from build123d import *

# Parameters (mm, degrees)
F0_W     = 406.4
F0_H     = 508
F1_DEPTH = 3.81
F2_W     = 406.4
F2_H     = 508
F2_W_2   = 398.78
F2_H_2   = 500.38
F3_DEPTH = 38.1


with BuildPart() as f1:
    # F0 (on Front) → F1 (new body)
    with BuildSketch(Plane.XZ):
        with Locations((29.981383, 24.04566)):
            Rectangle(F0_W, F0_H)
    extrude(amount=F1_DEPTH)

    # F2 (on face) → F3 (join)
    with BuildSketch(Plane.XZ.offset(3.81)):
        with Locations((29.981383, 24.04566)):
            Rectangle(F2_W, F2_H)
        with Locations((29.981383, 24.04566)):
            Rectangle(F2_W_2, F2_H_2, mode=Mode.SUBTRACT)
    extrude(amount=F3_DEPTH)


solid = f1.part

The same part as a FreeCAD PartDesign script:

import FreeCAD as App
import Part
import Sketcher

V = App.Vector
Q = App.Units.Quantity


def add_polygon(sketch, points):
    """Adds a closed chain of lines whose ends are joined by coincident constraints."""
    first, n = sketch.GeometryCount, len(points)
    for a, b in zip(points, points[1:] + points[:1]):
        sketch.addGeometry(Part.LineSegment(App.Vector(*a, 0), App.Vector(*b, 0)), False)
    for i in range(n):
        sketch.addConstraint(Sketcher.Constraint("Coincident", first + i, 2, first + (i + 1) % n, 1))

doc = App.newDocument("Part")
params = doc.addObject("Spreadsheet::Sheet", "Params")
for row, (alias, value) in enumerate([
    ("sketch1_width", "16 in"),
    ("sketch1_height", "20 in"),
    ("pad1_length", "0.15 in"),
    ("sketch2_width", "16 in"),
    ("sketch2_height", "20 in"),
    ("sketch2_width2", "15.7 in"),
    ("sketch2_height2", "19.7 in"),
    ("pad2_length", "1.5 in"),
], start=1):
    params.set(f"A{row}", alias)
    params.set(f"B{row}", "=" + value)
    params.setAlias(f"B{row}", alias)

body = doc.addObject("PartDesign::Body", "Body")

# Sketch on XZ plane
sketch1 = doc.addObject("Sketcher::SketchObject", "Sketch")
body.addObject(sketch1)
sketch1.AttachmentSupport = (doc.XZ_Plane, [""])
sketch1.MapMode = "FlatFace"
add_polygon(sketch1, [(-173, 278), (-173, -230), (233, -230), (233, 278)])  # lines 0-3
sketch1.addConstraint([
    Sketcher.Constraint("Vertical", 0),
    Sketcher.Constraint("Horizontal", 1),
    Sketcher.Constraint("Vertical", 2),
    Sketcher.Constraint("Horizontal", 3),
    Sketcher.Constraint("DistanceX", 1, 1, 1, 2, Q("16 in")),
    Sketcher.Constraint("DistanceY", 0, 2, 0, 1, Q("20 in")),
    Sketcher.Constraint("DistanceY", 0, 2, -1, 1, 229.95434),
    Sketcher.Constraint("DistanceX", 0, 2, -1, 1, 173.218617),
])
sketch1.setExpression("Constraints[8]", "Params.sketch1_width")
sketch1.setExpression("Constraints[9]", "Params.sketch1_height")
pad1 = doc.addObject("PartDesign::Pad", "Pad")
body.addObject(pad1)
pad1.Profile = sketch1
pad1.setExpression("Length", "Params.pad1_length")

# Sketch on XZ plane
sketch2 = doc.addObject("Sketcher::SketchObject", "Sketch001")
body.addObject(sketch2)
sketch2.AttachmentSupport = (doc.XZ_Plane, [""])
sketch2.MapMode = "FlatFace"
sketch2.AttachmentOffset = App.Placement(V(0, 0, 0.15 * 25.4), App.Rotation())
add_polygon(sketch2, [(-173, 278), (-173, -230), (233, -230), (233, 278)])  # lines 0-3
add_polygon(sketch2, [(229, -226), (-169, -226), (-169, 274), (229, 274)])  # lines 4-7
sketch2.addConstraint([
    Sketcher.Constraint("Vertical", 0),
    Sketcher.Constraint("Horizontal", 1),
    Sketcher.Constraint("Vertical", 2),
    Sketcher.Constraint("Horizontal", 3),
    Sketcher.Constraint("Horizontal", 4),
    Sketcher.Constraint("Vertical", 5),
    Sketcher.Constraint("Horizontal", 6),
    Sketcher.Constraint("Vertical", 7),
    Sketcher.Constraint("DistanceX", 1, 1, 1, 2, Q("16 in")),
    Sketcher.Constraint("DistanceY", 0, 2, 0, 1, Q("20 in")),
    Sketcher.Constraint("DistanceX", 4, 2, 4, 1, Q("15.7 in")),
    Sketcher.Constraint("DistanceY", 5, 1, 5, 2, Q("19.7 in")),
    Sketcher.Constraint("DistanceX", 0, 2, 4, 2, Q("0.15 in")),
    Sketcher.Constraint("DistanceY", 0, 2, 4, 2, Q("0.15 in")),
    Sketcher.Constraint("DistanceY", 0, 2, -1, 1, 229.95434),
    Sketcher.Constraint("DistanceX", 0, 2, -1, 1, 173.218617),
])
sketch2.setExpression("Constraints[16]", "Params.sketch2_width")
sketch2.setExpression("Constraints[17]", "Params.sketch2_height")
sketch2.setExpression("Constraints[18]", "Params.sketch2_width2")
sketch2.setExpression("Constraints[19]", "Params.sketch2_height2")
pad2 = doc.addObject("PartDesign::Pad", "Pad001")
body.addObject(pad2)
pad2.Profile = sketch2
pad2.setExpression("Length", "Params.pad2_length")

doc.recompute()
